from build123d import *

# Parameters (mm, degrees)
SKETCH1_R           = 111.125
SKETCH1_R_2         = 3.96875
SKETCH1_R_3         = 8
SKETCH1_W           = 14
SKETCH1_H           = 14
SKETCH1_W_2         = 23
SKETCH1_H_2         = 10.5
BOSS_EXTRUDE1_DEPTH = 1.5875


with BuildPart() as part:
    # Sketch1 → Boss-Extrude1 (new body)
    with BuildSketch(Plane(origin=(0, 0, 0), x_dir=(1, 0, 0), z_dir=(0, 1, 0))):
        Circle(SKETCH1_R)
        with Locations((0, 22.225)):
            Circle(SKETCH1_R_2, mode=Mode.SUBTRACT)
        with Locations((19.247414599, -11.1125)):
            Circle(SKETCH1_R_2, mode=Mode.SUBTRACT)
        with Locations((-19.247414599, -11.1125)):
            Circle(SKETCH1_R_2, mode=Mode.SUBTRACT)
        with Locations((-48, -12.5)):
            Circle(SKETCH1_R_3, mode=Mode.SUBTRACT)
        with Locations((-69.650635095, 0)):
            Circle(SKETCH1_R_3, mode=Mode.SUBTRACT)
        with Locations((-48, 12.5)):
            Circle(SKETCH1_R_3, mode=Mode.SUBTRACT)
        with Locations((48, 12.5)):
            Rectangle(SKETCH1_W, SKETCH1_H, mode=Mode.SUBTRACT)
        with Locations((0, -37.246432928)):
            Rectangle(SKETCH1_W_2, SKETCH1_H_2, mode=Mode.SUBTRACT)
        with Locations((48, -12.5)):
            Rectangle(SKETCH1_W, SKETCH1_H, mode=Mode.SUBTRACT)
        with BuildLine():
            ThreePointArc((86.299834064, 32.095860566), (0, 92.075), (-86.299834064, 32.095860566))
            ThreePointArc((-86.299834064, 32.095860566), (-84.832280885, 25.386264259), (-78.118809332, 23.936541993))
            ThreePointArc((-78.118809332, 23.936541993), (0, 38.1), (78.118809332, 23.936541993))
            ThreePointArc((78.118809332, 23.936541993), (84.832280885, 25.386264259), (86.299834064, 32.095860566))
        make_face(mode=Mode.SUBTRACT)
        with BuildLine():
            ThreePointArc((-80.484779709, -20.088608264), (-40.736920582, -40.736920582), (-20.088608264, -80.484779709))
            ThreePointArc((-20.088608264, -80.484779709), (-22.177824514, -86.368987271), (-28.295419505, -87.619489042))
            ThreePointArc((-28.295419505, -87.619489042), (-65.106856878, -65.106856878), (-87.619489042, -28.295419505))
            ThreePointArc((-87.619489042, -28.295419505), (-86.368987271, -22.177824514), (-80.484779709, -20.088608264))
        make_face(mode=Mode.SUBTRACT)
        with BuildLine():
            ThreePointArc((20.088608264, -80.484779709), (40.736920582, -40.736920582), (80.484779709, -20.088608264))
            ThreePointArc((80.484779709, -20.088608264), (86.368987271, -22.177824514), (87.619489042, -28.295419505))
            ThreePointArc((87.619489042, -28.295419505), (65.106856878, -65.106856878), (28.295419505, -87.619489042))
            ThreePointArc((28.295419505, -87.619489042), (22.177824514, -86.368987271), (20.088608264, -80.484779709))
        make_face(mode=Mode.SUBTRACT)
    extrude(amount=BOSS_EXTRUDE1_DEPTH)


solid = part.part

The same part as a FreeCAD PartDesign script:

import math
import FreeCAD as App
import Part
import Sketcher

V = App.Vector
Q = App.Units.Quantity

doc = App.newDocument("Part")
body = doc.addObject("PartDesign::Body", "Body")

sketch1 = body.newObject("Sketcher::SketchObject", "Sketch")
sketch1.AttachmentSupport = (doc.getObject("XZ_Plane"), [""])
sketch1.MapMode = "FlatFace"
sketch1.addGeometry(Part.Circle(V(0, 0, 0), V(0, 0, 1), 111.1), False)
sketch1.addGeometry(Part.ArcOfCircle(Part.Circle(V(-81.6, 26.3, 0), V(0, 0, 1), 6.3), math.radians(162), math.radians(280)), False)
sketch1.addGeometry(Part.ArcOfCircle(Part.Circle(V(-93.3, 93.3, 0), V(0, 0, 1), 74.3), math.radians(-80), math.radians(-10)), False)
sketch1.addGeometry(Part.ArcOfCircle(Part.Circle(V(-26.3, 81.6, 0), V(0, 0, 1), 6.3), math.radians(-10), math.radians(108)), False)
sketch1.addGeometry(Part.ArcOfCircle(Part.Circle(V(0, 0, 0), V(0, 0, 1), 92.1), math.radians(108), math.radians(162)), False)
sketch1.addGeometry(Part.Circle(V(-69.7, 0, 0), V(0, 0, 1), 8), False)
sketch1.addGeometry(Part.Circle(V(-48, 12.5, 0), V(0, 0, 1), 8), False)
sketch1.addGeometry(Part.Circle(V(-19.2, 11.1, 0), V(0, 0, 1), 4), False)
sketch1.addGeometry(Part.ArcOfCircle(Part.Circle(V(26.3, 81.6, 0), V(0, 0, 1), 6.3), math.radians(72), math.radians(190)), False)
sketch1.addGeometry(Part.ArcOfCircle(Part.Circle(V(93.3, 93.3, 0), V(0, 0, 1), 74.3), math.radians(-170), math.radians(-100)), False)
sketch1.addGeometry(Part.ArcOfCircle(Part.Circle(V(81.6, 26.3, 0), V(0, 0, 1), 6.3), math.radians(-100), math.radians(18)), False)
sketch1.addGeometry(Part.ArcOfCircle(Part.Circle(V(0, 0, 0), V(0, 0, 1), 92.1), math.radians(18), math.radians(72)), False)
sketch1.addGeometry(Part.LineSegment(V(11.5, 42.5, 0), V(-11.5, 42.5, 0)), False)
sketch1.addGeometry(Part.LineSegment(V(-11.5, 42.5, 0), V(-11.5, 32, 0)), False)
sketch1.addGeometry(Part.LineSegment(V(-11.5, 32, 0), V(11.5, 32, 0)), False)
sketch1.addGeometry(Part.LineSegment(V(11.5, 32, 0), V(11.5, 42.5, 0)), False)
sketch1.addGeometry(Part.Circle(V(19.2, 11.1, 0), V(0, 0, 1), 4), False)
sketch1.addGeometry(Part.LineSegment(V(55, 19.5, 0), V(41, 19.5, 0)), False)
sketch1.addGeometry(Part.LineSegment(V(41, 19.5, 0), V(41, 5.5, 0)), False)
sketch1.addGeometry(Part.LineSegment(V(41, 5.5, 0), V(55, 5.5, 0)), False)
sketch1.addGeometry(Part.LineSegment(V(55, 5.5, 0), V(55, 19.5, 0)), False)
sketch1.addGeometry(Part.Circle(V(-48, -12.5, 0), V(0, 0, 1), 8), False)
sketch1.addGeometry(Part.Circle(V(0, -22.2, 0), V(0, 0, 1), 4), False)
sketch1.addGeometry(Part.LineSegment(V(55, -5.5, 0), V(41, -5.5, 0)), False)
sketch1.addGeometry(Part.LineSegment(V(41, -5.5, 0), V(41, -19.5, 0)), False)
sketch1.addGeometry(Part.LineSegment(V(41, -19.5, 0), V(55, -19.5, 0)), False)
sketch1.addGeometry(Part.LineSegment(V(55, -19.5, 0), V(55, -5.5, 0)), False)
sketch1.addGeometry(Part.ArcOfCircle(Part.Circle(V(0, 0, 0), V(0, 0, 1), 92.1), math.radians(-160), math.radians(-20)), False)
sketch1.addGeometry(Part.ArcOfCircle(Part.Circle(V(80.3, -29.9, 0), V(0, 0, 1), 6.3), math.radians(-20), math.radians(111)), False)
sketch1.addGeometry(Part.ArcOfCircle(Part.Circle(V(0, 184.4, 0), V(0, 0, 1), 222.5), math.radians(-111), math.radians(-69)), False)
sketch1.addGeometry(Part.ArcOfCircle(Part.Circle(V(-80.3, -29.9, 0), V(0, 0, 1), 6.3), math.radians(69), math.radians(200)), False)
sketch1.addConstraint(Sketcher.Constraint("Tangent", 1, 2, 2, 1))
sketch1.addConstraint(Sketcher.Constraint("Tangent", 2, 2, 3, 1))
sketch1.addConstraint(Sketcher.Constraint("Tangent", 3, 2, 4, 1))
sketch1.addConstraint(Sketcher.Constraint("Tangent", 4, 2, 1, 1))
sketch1.addConstraint(Sketcher.Constraint("Tangent", 8, 2, 9, 1))
sketch1.addConstraint(Sketcher.Constraint("Tangent", 9, 2, 10, 1))
sketch1.addConstraint(Sketcher.Constraint("Tangent", 10, 2, 11, 1))
sketch1.addConstraint(Sketcher.Constraint("Tangent", 11, 2, 8, 1))
sketch1.addConstraint(Sketcher.Constraint("Coincident", 12, 2, 13, 1))
sketch1.addConstraint(Sketcher.Constraint("Coincident", 13, 2, 14, 1))
sketch1.addConstraint(Sketcher.Constraint("Coincident", 14, 2, 15, 1))
sketch1.addConstraint(Sketcher.Constraint("Coincident", 15, 2, 12, 1))
sketch1.addConstraint(Sketcher.Constraint("Coincident", 17, 2, 18, 1))
sketch1.addConstraint(Sketcher.Constraint("Coincident", 18, 2, 19, 1))
sketch1.addConstraint(Sketcher.Constraint("Coincident", 19, 2, 20, 1))
sketch1.addConstraint(Sketcher.Constraint("Coincident", 20, 2, 17, 1))
sketch1.addConstraint(Sketcher.Constraint("Coincident", 23, 2, 24, 1))
sketch1.addConstraint(Sketcher.Constraint("Coincident", 24, 2, 25, 1))
sketch1.addConstraint(Sketcher.Constraint("Coincident", 25, 2, 26, 1))
sketch1.addConstraint(Sketcher.Constraint("Coincident", 26, 2, 23, 1))
sketch1.addConstraint(Sketcher.Constraint("Tangent", 27, 2, 28, 1))
sketch1.addConstraint(Sketcher.Constraint("Tangent", 28, 2, 29, 2))
sketch1.addConstraint(Sketcher.Constraint("Tangent", 29, 1, 30, 1))
sketch1.addConstraint(Sketcher.Constraint("Tangent", 30, 2, 27, 1))
sketch1.addConstraint(Sketcher.Constraint("Horizontal", 12))
sketch1.addConstraint(Sketcher.Constraint("Vertical", 13))
sketch1.addConstraint(Sketcher.Constraint("Horizontal", 14))
sketch1.addConstraint(Sketcher.Constraint("Vertical", 15))
sketch1.addConstraint(Sketcher.Constraint("Horizontal", 17))
sketch1.addConstraint(Sketcher.Constraint("Vertical", 18))
sketch1.addConstraint(Sketcher.Constraint("Horizontal", 19))
sketch1.addConstraint(Sketcher.Constraint("Vertical", 20))
sketch1.addConstraint(Sketcher.Constraint("Horizontal", 23))
sketch1.addConstraint(Sketcher.Constraint("Vertical", 24))
sketch1.addConstraint(Sketcher.Constraint("Horizontal", 25))
sketch1.addConstraint(Sketcher.Constraint("Vertical", 26))
sketch1.addConstraint(Sketcher.Constraint("Coincident", 0, 3, -1, 1))
sketch1.addConstraint(Sketcher.Constraint("Coincident", 4, 3, -1, 1))
sketch1.addConstraint(Sketcher.Constraint("Coincident", 11, 3, -1, 1))
sketch1.addConstraint(Sketcher.Constraint("Coincident", 27, 3, -1, 1))
sketch1.addConstraint(Sketcher.Constraint("Equal", 1, 3))
sketch1.addConstraint(Sketcher.Constraint("Equal", 5, 6))
sketch1.addConstraint(Sketcher.Constraint("Equal", 3, 8))
sketch1.addConstraint(Sketcher.Constraint("Equal", 2, 9))
sketch1.addConstraint(Sketcher.Constraint("Equal", 8, 10))
sketch1.addConstraint(Sketcher.Constraint("Equal", 4, 11))
sketch1.addConstraint(Sketcher.Constraint("Equal", 7, 16))
sketch1.addConstraint(Sketcher.Constraint("Equal", 6, 21))
sketch1.addConstraint(Sketcher.Constraint("Equal", 16, 22))
sketch1.addConstraint(Sketcher.Constraint("Equal", 11, 27))
sketch1.addConstraint(Sketcher.Constraint("Equal", 10, 28))
sketch1.addConstraint(Sketcher.Constraint("Equal", 28, 30))
sketch1.addConstraint(Sketcher.Constraint("Symmetric", 2, 3, 9, 3, -2))
sketch1.addConstraint(Sketcher.Constraint("Symmetric", 7, 3, 16, 3, -2))
sketch1.addConstraint(Sketcher.Constraint("Symmetric", 6, 3, 21, 3, -1))
sketch1.addConstraint(Sketcher.Constraint("Symmetric", 18, 2, 23, 2, -1))
sketch1.addConstraint(Sketcher.Constraint("Symmetric", 20, 2, 25, 2, -1))
sketch1.addConstraint(Sketcher.Constraint("PointOnObject", 5, 3, -1))
sketch1.addConstraint(Sketcher.Constraint("PointOnObject", 22, 3, -2))
sketch1.addConstraint(Sketcher.Constraint("PointOnObject", 29, 3, -2))
sketch1.addConstraint(Sketcher.Constraint("Equal", 25, 18))
sketch1.addConstraint(Sketcher.Constraint("Diameter", 0, Q("8.75 in")))
sketch1.addConstraint(Sketcher.Constraint("Radius", 1, Q("0.25 in")))
sketch1.addConstraint(Sketcher.Constraint("Diameter", 7, Q("0.3125 in")))
sketch1.addConstraint(Sketcher.Constraint("Radius", 4, Q("3.625 in")))
sketch1.addConstraint(Sketcher.Constraint("Diameter", 5, 16.0))
sketch1.addConstraint(Sketcher.Constraint("DistanceY", -1, 1, 7, 3, Q("0.4375 in")))
sketch1.addConstraint(Sketcher.Constraint("DistanceY", 22, 3, -1, 1, Q("0.875 in")))
sketch1.addConstraint(Sketcher.Constraint("Radius", 2, 74.275559))
sketch1.addConstraint(Sketcher.Constraint("DistanceX", 12, 2, 12, 1, 23.0))
sketch1.addConstraint(Sketcher.Constraint("DistanceX", 17, 2, 17, 1, 14.0))
sketch1.addConstraint(Sketcher.Constraint("DistanceY", 13, 2, 13, 1, 10.5))
sketch1.addConstraint(Sketcher.Constraint("Radius", 29, 222.514583))
sketch1.addConstraint(Sketcher.Constraint("DistanceY", 27, 2, 25, 2, Q("0.4959 in")))
sketch1.addConstraint(Sketcher.Constraint("DistanceX", 6, 3, -1, 1, 48.0))
sketch1.addConstraint(Sketcher.Constraint("DistanceY", -1, 1, 6, 3, 12.5))
sketch1.addConstraint(Sketcher.Constraint("DistanceX", 12, 2, -1, 1, 11.5))
sketch1.addConstraint(Sketcher.Constraint("DistanceX", -1, 1, 17, 2, 41.0))
sketch1.addConstraint(Sketcher.Constraint("DistanceY", -1, 1, 17, 2, 19.5))
sketch1.addConstraint(Sketcher.Constraint("DistanceX", 30, 2, 5, 3, 16.649199))
sketch1.addConstraint(Sketcher.Constraint("DistanceY", -1, 1, 1, 3, 26.344011))
sketch1.addConstraint(Sketcher.Constraint("DistanceX", 3, 3, -1, 1, 26.344011))
sketch1.addConstraint(Sketcher.Constraint("DistanceX", 5, 3, 7, 3, 50.40322))
sketch1.addConstraint(Sketcher.Constraint("DistanceY", -1, 1, 12, 2, 42.496433))
pad1 = body.newObject("PartDesign::Pad", "Pad")
pad1.Profile = sketch1
pad1.Length = Q("0.0625 in")
pad1.Reversed = True

doc.recompute()
